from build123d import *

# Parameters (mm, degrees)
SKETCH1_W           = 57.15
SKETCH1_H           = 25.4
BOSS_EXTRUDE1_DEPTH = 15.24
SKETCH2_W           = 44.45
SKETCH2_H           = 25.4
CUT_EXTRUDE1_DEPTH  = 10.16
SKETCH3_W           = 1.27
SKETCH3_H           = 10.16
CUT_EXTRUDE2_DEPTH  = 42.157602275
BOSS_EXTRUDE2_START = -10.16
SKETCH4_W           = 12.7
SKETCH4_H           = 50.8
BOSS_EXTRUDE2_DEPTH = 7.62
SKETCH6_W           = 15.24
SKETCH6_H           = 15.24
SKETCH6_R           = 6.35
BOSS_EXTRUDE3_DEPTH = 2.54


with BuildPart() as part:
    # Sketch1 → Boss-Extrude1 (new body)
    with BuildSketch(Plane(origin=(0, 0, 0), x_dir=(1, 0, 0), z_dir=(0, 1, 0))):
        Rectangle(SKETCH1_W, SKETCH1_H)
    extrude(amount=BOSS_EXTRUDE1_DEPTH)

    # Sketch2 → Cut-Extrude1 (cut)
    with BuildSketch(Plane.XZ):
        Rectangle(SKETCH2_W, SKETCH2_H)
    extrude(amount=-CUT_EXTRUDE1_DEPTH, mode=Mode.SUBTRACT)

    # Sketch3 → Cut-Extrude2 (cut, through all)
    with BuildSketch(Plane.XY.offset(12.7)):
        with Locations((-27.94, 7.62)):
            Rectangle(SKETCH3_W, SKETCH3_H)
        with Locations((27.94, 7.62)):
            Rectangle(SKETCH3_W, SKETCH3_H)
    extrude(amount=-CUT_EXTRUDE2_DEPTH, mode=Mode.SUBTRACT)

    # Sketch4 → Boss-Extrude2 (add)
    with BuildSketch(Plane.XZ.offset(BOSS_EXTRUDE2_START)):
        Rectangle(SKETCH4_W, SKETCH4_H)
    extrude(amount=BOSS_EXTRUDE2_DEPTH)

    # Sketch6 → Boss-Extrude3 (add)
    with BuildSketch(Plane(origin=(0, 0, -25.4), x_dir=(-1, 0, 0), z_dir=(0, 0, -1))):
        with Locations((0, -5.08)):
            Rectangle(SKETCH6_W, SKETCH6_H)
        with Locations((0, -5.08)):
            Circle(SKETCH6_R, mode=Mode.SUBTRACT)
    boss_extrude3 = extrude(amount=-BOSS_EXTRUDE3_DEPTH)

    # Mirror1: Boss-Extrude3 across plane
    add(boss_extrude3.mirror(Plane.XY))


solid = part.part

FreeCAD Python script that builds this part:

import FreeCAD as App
import Part
import Sketcher

V = App.Vector
Q = App.Units.Quantity


def add_polygon(sketch, points):
    """Adds a closed chain of lines whose ends are joined by coincident constraints."""
    first, n = sketch.GeometryCount, len(points)
    for a, b in zip(points, points[1:] + points[:1]):
        sketch.addGeometry(Part.LineSegment(App.Vector(*a, 0), App.Vector(*b, 0)), False)
    for i in range(n):
        sketch.addConstraint(Sketcher.Constraint("Coincident", first + i, 2, first + (i + 1) % n, 1))

doc = App.newDocument("Part")
body = doc.addObject("PartDesign::Body", "Body")

# Sketch on XZ plane
sketch1 = doc.addObject("Sketcher::SketchObject", "Sketch")
body.addObject(sketch1)
sketch1.AttachmentSupport = (doc.XZ_Plane, [""])
sketch1.MapMode = "FlatFace"
add_polygon(sketch1, [(-29, -13), (-29, 13), (29, 13), (29, -13)])  # lines 0-3
sketch1.addConstraint([
    Sketcher.Constraint("Vertical", 0),
    Sketcher.Constraint("Horizontal", 1),
    Sketcher.Constraint("Vertical", 2),
    Sketcher.Constraint("Horizontal", 3),
    Sketcher.Constraint("Symmetric", 0, 2, 2, 2, -1, 1),
    Sketcher.Constraint("DistanceY", 0, 1, 0, 2, Q("1 in")),
    Sketcher.Constraint("DistanceX", 1, 1, 1, 2, Q("2.25 in")),
])
pad1 = doc.addObject("PartDesign::Pad", "Pad")
body.addObject(pad1)
pad1.Profile = sketch1
pad1.Length = Q("0.6 in")
pad1.Reversed = True

# Sketch on XZ plane
sketch2 = doc.addObject("Sketcher::SketchObject", "Sketch001")
body.addObject(sketch2)
sketch2.AttachmentSupport = (doc.XZ_Plane, [""])
sketch2.MapMode = "FlatFace"
add_polygon(sketch2, [(-22, 13), (-22, -13), (22, -13), (22, 13)])  # lines 0-3
sketch2.addConstraint([
    Sketcher.Constraint("Vertical", 0),
    Sketcher.Constraint("Horizontal", 1),
    Sketcher.Constraint("Vertical", 2),
    Sketcher.Constraint("Horizontal", 3),
    Sketcher.Constraint("Symmetric", 0, 2, 2, 2, -1, 1),
    Sketcher.Constraint("DistanceY", 0, 2, 0, 1, Q("1 in")),
    Sketcher.Constraint("DistanceX", 1, 1, 1, 2, Q("1.75 in")),
])
pocket1 = doc.addObject("PartDesign::Pocket", "Pocket")
body.addObject(pocket1)
pocket1.Profile = sketch2
pocket1.Length = Q("0.4 in")

# Sketch on XY plane
sketch3 = doc.addObject("Sketcher::SketchObject", "Sketch002")
body.addObject(sketch3)
sketch3.AttachmentSupport = (doc.XY_Plane, [""])
sketch3.MapMode = "FlatFace"
sketch3.AttachmentOffset = App.Placement(V(0, 0, 0.5 * 25.4), App.Rotation())
add_polygon(sketch3, [(-28.6, 12.7), (-28.6, 2.5), (-27.3, 2.5), (-27.3, 12.7)])  # lines 0-3
add_polygon(sketch3, [(27.3, 12.7), (27.3, 2.5), (28.6, 2.5), (28.6, 12.7)])  # lines 4-7
sketch3.addConstraint([
    Sketcher.Constraint("Vertical", 0),
    Sketcher.Constraint("Horizontal", 1),
    Sketcher.Constraint("Vertical", 2),
    Sketcher.Constraint("Horizontal", 3),
    Sketcher.Constraint("Vertical", 4),
    Sketcher.Constraint("Horizontal", 5),
    Sketcher.Constraint("Vertical", 6),
    Sketcher.Constraint("Horizontal", 7),
    Sketcher.Constraint("Symmetric", 1, 2, 4, 2, -2),
    Sketcher.Constraint("Symmetric", 3, 2, 6, 2, -2),
    Sketcher.Constraint("DistanceY", 0, 2, 0, 1, Q("0.4 in")),
    Sketcher.Constraint("DistanceX", 1, 1, 1, 2, Q("0.05 in")),
    Sketcher.Constraint("DistanceY", -1, 1, 0, 2, Q("0.1 in")),
    Sketcher.Constraint("DistanceX", 0, 2, 4, 2, Q("2.2 in")),
])
pocket2 = doc.addObject("PartDesign::Pocket", "Pocket001")
body.addObject(pocket2)
pocket2.Profile = sketch3
pocket2.Type = "ThroughAll"

# Sketch on XZ plane
sketch4 = doc.addObject("Sketcher::SketchObject", "Sketch003")
body.addObject(sketch4)
sketch4.AttachmentSupport = (doc.XZ_Plane, [""])
sketch4.MapMode = "FlatFace"
sketch4.AttachmentOffset = App.Placement(V(0, 0, -0.4 * 25.4), App.Rotation())
add_polygon(sketch4, [(-6, 25), (-6, -25), (6, -25), (6, 25)])  # lines 0-3
sketch4.addConstraint([
    Sketcher.Constraint("Vertical", 0),
    Sketcher.Constraint("Horizontal", 1),
    Sketcher.Constraint("Vertical", 2),
    Sketcher.Constraint("Horizontal", 3),
    Sketcher.Constraint("Symmetric", 0, 2, 2, 2, -1, 1),
    Sketcher.Constraint("DistanceY", 0, 2, 0, 1, Q("2 in")),
    Sketcher.Constraint("DistanceX", 1, 1, 1, 2, Q("0.5 in")),
])
pad2 = doc.addObject("PartDesign::Pad", "Pad001")
body.addObject(pad2)
pad2.Profile = sketch4
pad2.Length = Q("0.3 in")

# Sketch on XY plane
sketch5 = doc.addObject("Sketcher::SketchObject", "Sketch004")
body.addObject(sketch5)
sketch5.AttachmentSupport = (doc.XY_Plane, [""])
sketch5.MapMode = "FlatFace"
sketch5.AttachmentOffset = App.Placement(V(0, 0, -1 * 25.4), App.Rotation())
add_polygon(sketch5, [(8, 3), (8, -13), (-8, -13), (-8, 3)])  # lines 0-3
sketch5.addGeometry(Part.Circle(V(0, -5, 0), V(0, 0, 1), 6), False)  # 4
sketch5.addConstraint([
    Sketcher.Constraint("Vertical", 0),
    Sketcher.Constraint("Horizontal", 1),
    Sketcher.Constraint("Vertical", 2),
    Sketcher.Constraint("Horizontal", 3),
    Sketcher.Constraint("PointOnObject", 4, 3, -2),
    Sketcher.Constraint("Equal", 3, 0),
    Sketcher.Constraint("Diameter", 4, Q("0.5 in")),
    Sketcher.Constraint("DistanceX", 1, 2, 1, 1, Q("0.6 in")),
    Sketcher.Constraint("DistanceY", 4, 3, -1, 1, Q("0.2 in")),
    Sketcher.Constraint("DistanceX", -1, 1, 0, 2, Q("0.3 in")),
    Sketcher.Constraint("DistanceY", 0, 2, -1, 1, Q("0.5 in")),
])
pad3 = doc.addObject("PartDesign::Pad", "Pad002")
body.addObject(pad3)
pad3.Profile = sketch5
pad3.Length = Q("0.1 in")
doc.recompute()

mirrored = doc.addObject("PartDesign::Mirrored", "Mirrored")
body.addObject(mirrored)
mirrored.Originals = [pad3]
mirrored.MirrorPlane = (doc.XY_Plane, [""])
body.Tip = mirrored

doc.recompute()
